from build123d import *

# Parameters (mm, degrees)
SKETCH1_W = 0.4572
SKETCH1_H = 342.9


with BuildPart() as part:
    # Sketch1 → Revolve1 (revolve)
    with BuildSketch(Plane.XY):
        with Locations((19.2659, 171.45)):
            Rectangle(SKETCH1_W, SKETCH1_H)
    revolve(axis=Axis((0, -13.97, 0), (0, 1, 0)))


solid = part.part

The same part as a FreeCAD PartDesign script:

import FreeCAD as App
import Part
import Sketcher
from FreeCAD import Vector
Q = App.Units.Quantity


def add_polygon(sketch, points):
    """Adds a closed chain of lines whose ends are joined by coincident constraints."""
    first, n = sketch.GeometryCount, len(points)
    for a, b in zip(points, points[1:] + points[:1]):
        sketch.addGeometry(Part.LineSegment(App.Vector(*a, 0), App.Vector(*b, 0)), False)
    for i in range(n):
        sketch.addConstraint(Sketcher.Constraint("Coincident", first + i, 2, first + (i + 1) % n, 1))

doc = App.newDocument("Part")
body = doc.addObject("PartDesign::Body", "Body")

# Sketch on XY plane
sketch1 = doc.addObject("Sketcher::SketchObject", "Sketch")
body.addObject(sketch1)
sketch1.AttachmentSupport = (doc.XY_Plane, [""])
sketch1.MapMode = "FlatFace"
add_polygon(sketch1, [(19.04, 342.9), (19.04, 0), (19.49, 0), (19.49, 342.9)])  # lines 0-3
sketch1.addConstraint([
    Sketcher.Constraint("Vertical", 0),
    Sketcher.Constraint("Horizontal", 1),
    Sketcher.Constraint("Vertical", 2),
    Sketcher.Constraint("Horizontal", 3),
    Sketcher.Constraint("PointOnObject", 0, 2, -1),
    Sketcher.Constraint("DistanceY", 0, 2, 0, 1, Q("13.5 in")),
    Sketcher.Constraint("DistanceX", 1, 1, 1, 2, Q("0.018 in")),
    Sketcher.Constraint("DistanceX", -1, 1, 0, 2, Q("0.7495 in")),
])
revolution = doc.addObject("PartDesign::Revolution", "Revolution")
body.addObject(revolution)
revolution.Profile = sketch1
revolution.ReferenceAxis = (sketch1, ["V_Axis"])
revolution.Angle = 360

doc.recompute()
